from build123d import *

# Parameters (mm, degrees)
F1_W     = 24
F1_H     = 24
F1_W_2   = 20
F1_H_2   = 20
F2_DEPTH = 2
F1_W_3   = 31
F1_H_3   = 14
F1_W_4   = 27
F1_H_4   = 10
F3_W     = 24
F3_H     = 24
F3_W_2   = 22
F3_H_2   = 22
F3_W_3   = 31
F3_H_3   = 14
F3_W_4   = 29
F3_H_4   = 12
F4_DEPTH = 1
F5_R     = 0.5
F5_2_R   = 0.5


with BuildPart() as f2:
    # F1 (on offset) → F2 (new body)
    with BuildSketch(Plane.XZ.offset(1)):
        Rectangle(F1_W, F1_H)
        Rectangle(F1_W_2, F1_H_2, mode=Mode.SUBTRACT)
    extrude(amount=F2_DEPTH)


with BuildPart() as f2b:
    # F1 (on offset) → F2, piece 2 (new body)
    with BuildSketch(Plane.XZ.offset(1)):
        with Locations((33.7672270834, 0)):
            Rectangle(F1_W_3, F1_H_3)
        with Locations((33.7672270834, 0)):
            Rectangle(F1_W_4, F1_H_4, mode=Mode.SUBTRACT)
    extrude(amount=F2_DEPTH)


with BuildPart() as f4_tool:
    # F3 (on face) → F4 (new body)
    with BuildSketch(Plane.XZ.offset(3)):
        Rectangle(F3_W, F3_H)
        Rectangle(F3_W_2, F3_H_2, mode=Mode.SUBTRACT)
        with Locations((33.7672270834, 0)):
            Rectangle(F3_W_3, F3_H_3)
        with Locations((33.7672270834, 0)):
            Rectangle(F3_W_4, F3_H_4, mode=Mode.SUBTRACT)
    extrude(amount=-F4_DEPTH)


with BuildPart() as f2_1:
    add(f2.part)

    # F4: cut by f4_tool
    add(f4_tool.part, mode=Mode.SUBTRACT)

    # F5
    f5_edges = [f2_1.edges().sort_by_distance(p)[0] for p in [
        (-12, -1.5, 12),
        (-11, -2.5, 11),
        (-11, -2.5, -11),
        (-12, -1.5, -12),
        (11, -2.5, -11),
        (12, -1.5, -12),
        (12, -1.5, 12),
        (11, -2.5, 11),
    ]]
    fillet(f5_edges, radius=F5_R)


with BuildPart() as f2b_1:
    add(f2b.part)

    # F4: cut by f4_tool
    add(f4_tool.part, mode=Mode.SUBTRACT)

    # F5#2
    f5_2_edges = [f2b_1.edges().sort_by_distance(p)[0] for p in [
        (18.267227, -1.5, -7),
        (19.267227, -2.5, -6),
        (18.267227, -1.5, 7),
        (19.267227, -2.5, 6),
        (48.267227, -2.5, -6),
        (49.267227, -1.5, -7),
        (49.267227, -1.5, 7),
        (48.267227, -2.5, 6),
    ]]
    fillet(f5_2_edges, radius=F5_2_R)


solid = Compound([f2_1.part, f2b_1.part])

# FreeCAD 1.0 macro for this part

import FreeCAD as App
import Part
import Sketcher


def edges_at(feature, points):
    """Names of the edges that pass closest to the given points."""
    edges = feature.Shape.Edges
    near = lambda p: min(range(len(edges)), key=lambda i: edges[i].distToShape(Part.Vertex(*p))[0])
    return sorted({f"Edge{near(p) + 1}" for p in points})


def add_polygon(sketch, points):
    """Adds a closed chain of lines whose ends are joined by coincident constraints."""
    first, n = sketch.GeometryCount, len(points)
    for a, b in zip(points, points[1:] + points[:1]):
        sketch.addGeometry(Part.LineSegment(App.Vector(*a, 0), App.Vector(*b, 0)), False)
    for i in range(n):
        sketch.addConstraint(Sketcher.Constraint("Coincident", first + i, 2, first + (i + 1) % n, 1))

doc = App.newDocument("Part")
body = doc.addObject("PartDesign::Body", "Body")

# Sketch on XZ plane
sketch1 = body.newObject("Sketcher::SketchObject", "Sketch")
sketch1.AttachmentSupport = (doc.getObject("XZ_Plane"), [""])
sketch1.MapMode = "FlatFace"
sketch1.AttachmentOffset = App.Placement(App.Vector(0, 0, 1), App.Rotation())
add_polygon(sketch1, [(-12, 12), (-12, -12), (12, -12), (12, 12)])  # lines 0-3
add_polygon(sketch1, [(10, -10), (-10, -10), (-10, 10), (10, 10)])  # lines 4-7
sketch1.addConstraint([
    Sketcher.Constraint("Vertical", 0),
    Sketcher.Constraint("Horizontal", 1),
    Sketcher.Constraint("Vertical", 2),
    Sketcher.Constraint("Horizontal", 3),
    Sketcher.Constraint("Horizontal", 4),
    Sketcher.Constraint("Vertical", 5),
    Sketcher.Constraint("Horizontal", 6),
    Sketcher.Constraint("Vertical", 7),
    Sketcher.Constraint("Symmetric", 0, 2, 2, 2, -1, 1),
    Sketcher.Constraint("Symmetric", 4, 2, 6, 2, -1, 1),
    Sketcher.Constraint("Equal", 3, 0),
    Sketcher.Constraint("Equal", 6, 5),
    Sketcher.Constraint("DistanceX", 1, 1, 1, 2, 24.0),
    Sketcher.Constraint("DistanceX", 4, 2, 4, 1, 20.0),
])
pad1 = body.newObject("PartDesign::Pad", "Pad")
pad1.Profile = sketch1
pad1.Length = 2
body2 = doc.addObject("PartDesign::Body", "Body001")

# Sketch on XZ plane
sketch2 = body2.newObject("Sketcher::SketchObject", "Sketch001")
sketch2.AttachmentSupport = (doc.getObject("XZ_Plane001"), [""])
sketch2.MapMode = "FlatFace"
sketch2.AttachmentOffset = App.Placement(App.Vector(0, 0, 1), App.Rotation())
add_polygon(sketch2, [(18, 7), (18, -7), (49, -7), (49, 7)])  # lines 0-3
add_polygon(sketch2, [(47, -5), (20, -5), (20, 5), (47, 5)])  # lines 4-7
sketch2.addConstraint([
    Sketcher.Constraint("Vertical", 0),
    Sketcher.Constraint("Horizontal", 1),
    Sketcher.Constraint("Vertical", 2),
    Sketcher.Constraint("Horizontal", 3),
    Sketcher.Constraint("Horizontal", 4),
    Sketcher.Constraint("Vertical", 5),
    Sketcher.Constraint("Horizontal", 6),
    Sketcher.Constraint("Vertical", 7),
    Sketcher.Constraint("DistanceX", 1, 1, 1, 2, 31.0),
    Sketcher.Constraint("DistanceX", 4, 2, 4, 1, 27.0),
    Sketcher.Constraint("DistanceY", 0, 2, 0, 1, 14.0),
    Sketcher.Constraint("DistanceY", 5, 1, 5, 2, 10.0),
    Sketcher.Constraint("DistanceY", 0, 2, -1, 1, 7.0),
    Sketcher.Constraint("DistanceY", 4, 2, -1, 1, 5.0),
    Sketcher.Constraint("DistanceX", 0, 2, 4, 2, 2.0),
    Sketcher.Constraint("DistanceX", -1, 1, 0, 2, 18.267227),
])
pad2 = body2.newObject("PartDesign::Pad", "Pad001")
pad2.Profile = sketch2
pad2.Length = 2
body3 = doc.addObject("PartDesign::Body", "Body002")
body3.AllowCompound = True

# Sketch on XZ plane
sketch3 = body3.newObject("Sketcher::SketchObject", "Sketch002")
sketch3.AttachmentSupport = (doc.getObject("XZ_Plane002"), [""])
sketch3.MapMode = "FlatFace"
sketch3.AttachmentOffset = App.Placement(App.Vector(0, 0, 3), App.Rotation())
add_polygon(sketch3, [(-12, 12), (-12, -12), (12, -12), (12, 12)])  # lines 0-3
add_polygon(sketch3, [(11, -11), (-11, -11), (-11, 11), (11, 11)])  # lines 4-7
add_polygon(sketch3, [(18, 7), (18, -7), (49, -7), (49, 7)])  # lines 8-11
add_polygon(sketch3, [(48, -6), (19, -6), (19, 6), (48, 6)])  # lines 12-15
sketch3.addConstraint([
    Sketcher.Constraint("Vertical", 0),
    Sketcher.Constraint("Horizontal", 1),
    Sketcher.Constraint("Vertical", 2),
    Sketcher.Constraint("Horizontal", 3),
    Sketcher.Constraint("Horizontal", 4),
    Sketcher.Constraint("Vertical", 5),
    Sketcher.Constraint("Horizontal", 6),
    Sketcher.Constraint("Vertical", 7),
    Sketcher.Constraint("Vertical", 8),
    Sketcher.Constraint("Horizontal", 9),
    Sketcher.Constraint("Vertical", 10),
    Sketcher.Constraint("Horizontal", 11),
    Sketcher.Constraint("Horizontal", 12),
    Sketcher.Constraint("Vertical", 13),
    Sketcher.Constraint("Horizontal", 14),
    Sketcher.Constraint("Vertical", 15),
    Sketcher.Constraint("Symmetric", 0, 2, 2, 2, -1, 1),
    Sketcher.Constraint("Symmetric", 4, 2, 6, 2, -1, 1),
    Sketcher.Constraint("Equal", 3, 0),
    Sketcher.Constraint("Equal", 6, 5),
    Sketcher.Constraint("DistanceX", 1, 1, 1, 2, 24.0),
    Sketcher.Constraint("DistanceX", 4, 2, 4, 1, 22.0),
    Sketcher.Constraint("DistanceX", 9, 1, 9, 2, 31.0),
    Sketcher.Constraint("DistanceX", 12, 2, 12, 1, 29.0),
    Sketcher.Constraint("DistanceY", 8, 2, 8, 1, 14.0),
    Sketcher.Constraint("DistanceY", 13, 1, 13, 2, 12.0),
    Sketcher.Constraint("DistanceY", 8, 2, -1, 1, 7.0),
    Sketcher.Constraint("DistanceY", 12, 2, -1, 1, 6.0),
    Sketcher.Constraint("DistanceX", 8, 2, 12, 2, 1.0),
    Sketcher.Constraint("DistanceX", -1, 1, 8, 2, 18.267227),
])
pad3 = body3.newObject("PartDesign::Pad", "Pad002")
pad3.Profile = sketch3
pad3.Length = 1
pad3.Reversed = True
doc.recompute()

body4 = doc.addObject("PartDesign::Body", "Body003")
body4.BaseFeature = body3
boolean = body.newObject("PartDesign::Boolean", "Boolean")
boolean.Type = "Cut"
boolean.addObjects([body4])
doc.recompute()

fillet = body.newObject("PartDesign::Fillet", "Fillet")
fillet.Base = (boolean, edges_at(boolean, [
    (-12, -1.5, 12),
    (-11, -2.5, 11),
    (-11, -2.5, -11),
    (-12, -1.5, -12),
    (11, -2.5, -11),
    (12, -1.5, -12),
    (12, -1.5, 12),
    (11, -2.5, 11),
]))
fillet.Radius = 0.5
doc.recompute()

boolean2 = body2.newObject("PartDesign::Boolean", "Boolean001")
boolean2.Type = "Cut"
boolean2.addObjects([body3])
doc.recompute()

fillet2 = body2.newObject("PartDesign::Fillet", "Fillet001")
fillet2.Base = (boolean2, edges_at(boolean2, [
    (18.267, -1.5, -7),
    (19.267, -2.5, -6),
    (18.267, -1.5, 7),
    (19.267, -2.5, 6),
    (48.267, -2.5, -6),
    (49.267, -1.5, -7),
    (49.267, -1.5, 7),
    (48.267, -2.5, 6),
]))
fillet2.Radius = 0.5

doc.recompute()
